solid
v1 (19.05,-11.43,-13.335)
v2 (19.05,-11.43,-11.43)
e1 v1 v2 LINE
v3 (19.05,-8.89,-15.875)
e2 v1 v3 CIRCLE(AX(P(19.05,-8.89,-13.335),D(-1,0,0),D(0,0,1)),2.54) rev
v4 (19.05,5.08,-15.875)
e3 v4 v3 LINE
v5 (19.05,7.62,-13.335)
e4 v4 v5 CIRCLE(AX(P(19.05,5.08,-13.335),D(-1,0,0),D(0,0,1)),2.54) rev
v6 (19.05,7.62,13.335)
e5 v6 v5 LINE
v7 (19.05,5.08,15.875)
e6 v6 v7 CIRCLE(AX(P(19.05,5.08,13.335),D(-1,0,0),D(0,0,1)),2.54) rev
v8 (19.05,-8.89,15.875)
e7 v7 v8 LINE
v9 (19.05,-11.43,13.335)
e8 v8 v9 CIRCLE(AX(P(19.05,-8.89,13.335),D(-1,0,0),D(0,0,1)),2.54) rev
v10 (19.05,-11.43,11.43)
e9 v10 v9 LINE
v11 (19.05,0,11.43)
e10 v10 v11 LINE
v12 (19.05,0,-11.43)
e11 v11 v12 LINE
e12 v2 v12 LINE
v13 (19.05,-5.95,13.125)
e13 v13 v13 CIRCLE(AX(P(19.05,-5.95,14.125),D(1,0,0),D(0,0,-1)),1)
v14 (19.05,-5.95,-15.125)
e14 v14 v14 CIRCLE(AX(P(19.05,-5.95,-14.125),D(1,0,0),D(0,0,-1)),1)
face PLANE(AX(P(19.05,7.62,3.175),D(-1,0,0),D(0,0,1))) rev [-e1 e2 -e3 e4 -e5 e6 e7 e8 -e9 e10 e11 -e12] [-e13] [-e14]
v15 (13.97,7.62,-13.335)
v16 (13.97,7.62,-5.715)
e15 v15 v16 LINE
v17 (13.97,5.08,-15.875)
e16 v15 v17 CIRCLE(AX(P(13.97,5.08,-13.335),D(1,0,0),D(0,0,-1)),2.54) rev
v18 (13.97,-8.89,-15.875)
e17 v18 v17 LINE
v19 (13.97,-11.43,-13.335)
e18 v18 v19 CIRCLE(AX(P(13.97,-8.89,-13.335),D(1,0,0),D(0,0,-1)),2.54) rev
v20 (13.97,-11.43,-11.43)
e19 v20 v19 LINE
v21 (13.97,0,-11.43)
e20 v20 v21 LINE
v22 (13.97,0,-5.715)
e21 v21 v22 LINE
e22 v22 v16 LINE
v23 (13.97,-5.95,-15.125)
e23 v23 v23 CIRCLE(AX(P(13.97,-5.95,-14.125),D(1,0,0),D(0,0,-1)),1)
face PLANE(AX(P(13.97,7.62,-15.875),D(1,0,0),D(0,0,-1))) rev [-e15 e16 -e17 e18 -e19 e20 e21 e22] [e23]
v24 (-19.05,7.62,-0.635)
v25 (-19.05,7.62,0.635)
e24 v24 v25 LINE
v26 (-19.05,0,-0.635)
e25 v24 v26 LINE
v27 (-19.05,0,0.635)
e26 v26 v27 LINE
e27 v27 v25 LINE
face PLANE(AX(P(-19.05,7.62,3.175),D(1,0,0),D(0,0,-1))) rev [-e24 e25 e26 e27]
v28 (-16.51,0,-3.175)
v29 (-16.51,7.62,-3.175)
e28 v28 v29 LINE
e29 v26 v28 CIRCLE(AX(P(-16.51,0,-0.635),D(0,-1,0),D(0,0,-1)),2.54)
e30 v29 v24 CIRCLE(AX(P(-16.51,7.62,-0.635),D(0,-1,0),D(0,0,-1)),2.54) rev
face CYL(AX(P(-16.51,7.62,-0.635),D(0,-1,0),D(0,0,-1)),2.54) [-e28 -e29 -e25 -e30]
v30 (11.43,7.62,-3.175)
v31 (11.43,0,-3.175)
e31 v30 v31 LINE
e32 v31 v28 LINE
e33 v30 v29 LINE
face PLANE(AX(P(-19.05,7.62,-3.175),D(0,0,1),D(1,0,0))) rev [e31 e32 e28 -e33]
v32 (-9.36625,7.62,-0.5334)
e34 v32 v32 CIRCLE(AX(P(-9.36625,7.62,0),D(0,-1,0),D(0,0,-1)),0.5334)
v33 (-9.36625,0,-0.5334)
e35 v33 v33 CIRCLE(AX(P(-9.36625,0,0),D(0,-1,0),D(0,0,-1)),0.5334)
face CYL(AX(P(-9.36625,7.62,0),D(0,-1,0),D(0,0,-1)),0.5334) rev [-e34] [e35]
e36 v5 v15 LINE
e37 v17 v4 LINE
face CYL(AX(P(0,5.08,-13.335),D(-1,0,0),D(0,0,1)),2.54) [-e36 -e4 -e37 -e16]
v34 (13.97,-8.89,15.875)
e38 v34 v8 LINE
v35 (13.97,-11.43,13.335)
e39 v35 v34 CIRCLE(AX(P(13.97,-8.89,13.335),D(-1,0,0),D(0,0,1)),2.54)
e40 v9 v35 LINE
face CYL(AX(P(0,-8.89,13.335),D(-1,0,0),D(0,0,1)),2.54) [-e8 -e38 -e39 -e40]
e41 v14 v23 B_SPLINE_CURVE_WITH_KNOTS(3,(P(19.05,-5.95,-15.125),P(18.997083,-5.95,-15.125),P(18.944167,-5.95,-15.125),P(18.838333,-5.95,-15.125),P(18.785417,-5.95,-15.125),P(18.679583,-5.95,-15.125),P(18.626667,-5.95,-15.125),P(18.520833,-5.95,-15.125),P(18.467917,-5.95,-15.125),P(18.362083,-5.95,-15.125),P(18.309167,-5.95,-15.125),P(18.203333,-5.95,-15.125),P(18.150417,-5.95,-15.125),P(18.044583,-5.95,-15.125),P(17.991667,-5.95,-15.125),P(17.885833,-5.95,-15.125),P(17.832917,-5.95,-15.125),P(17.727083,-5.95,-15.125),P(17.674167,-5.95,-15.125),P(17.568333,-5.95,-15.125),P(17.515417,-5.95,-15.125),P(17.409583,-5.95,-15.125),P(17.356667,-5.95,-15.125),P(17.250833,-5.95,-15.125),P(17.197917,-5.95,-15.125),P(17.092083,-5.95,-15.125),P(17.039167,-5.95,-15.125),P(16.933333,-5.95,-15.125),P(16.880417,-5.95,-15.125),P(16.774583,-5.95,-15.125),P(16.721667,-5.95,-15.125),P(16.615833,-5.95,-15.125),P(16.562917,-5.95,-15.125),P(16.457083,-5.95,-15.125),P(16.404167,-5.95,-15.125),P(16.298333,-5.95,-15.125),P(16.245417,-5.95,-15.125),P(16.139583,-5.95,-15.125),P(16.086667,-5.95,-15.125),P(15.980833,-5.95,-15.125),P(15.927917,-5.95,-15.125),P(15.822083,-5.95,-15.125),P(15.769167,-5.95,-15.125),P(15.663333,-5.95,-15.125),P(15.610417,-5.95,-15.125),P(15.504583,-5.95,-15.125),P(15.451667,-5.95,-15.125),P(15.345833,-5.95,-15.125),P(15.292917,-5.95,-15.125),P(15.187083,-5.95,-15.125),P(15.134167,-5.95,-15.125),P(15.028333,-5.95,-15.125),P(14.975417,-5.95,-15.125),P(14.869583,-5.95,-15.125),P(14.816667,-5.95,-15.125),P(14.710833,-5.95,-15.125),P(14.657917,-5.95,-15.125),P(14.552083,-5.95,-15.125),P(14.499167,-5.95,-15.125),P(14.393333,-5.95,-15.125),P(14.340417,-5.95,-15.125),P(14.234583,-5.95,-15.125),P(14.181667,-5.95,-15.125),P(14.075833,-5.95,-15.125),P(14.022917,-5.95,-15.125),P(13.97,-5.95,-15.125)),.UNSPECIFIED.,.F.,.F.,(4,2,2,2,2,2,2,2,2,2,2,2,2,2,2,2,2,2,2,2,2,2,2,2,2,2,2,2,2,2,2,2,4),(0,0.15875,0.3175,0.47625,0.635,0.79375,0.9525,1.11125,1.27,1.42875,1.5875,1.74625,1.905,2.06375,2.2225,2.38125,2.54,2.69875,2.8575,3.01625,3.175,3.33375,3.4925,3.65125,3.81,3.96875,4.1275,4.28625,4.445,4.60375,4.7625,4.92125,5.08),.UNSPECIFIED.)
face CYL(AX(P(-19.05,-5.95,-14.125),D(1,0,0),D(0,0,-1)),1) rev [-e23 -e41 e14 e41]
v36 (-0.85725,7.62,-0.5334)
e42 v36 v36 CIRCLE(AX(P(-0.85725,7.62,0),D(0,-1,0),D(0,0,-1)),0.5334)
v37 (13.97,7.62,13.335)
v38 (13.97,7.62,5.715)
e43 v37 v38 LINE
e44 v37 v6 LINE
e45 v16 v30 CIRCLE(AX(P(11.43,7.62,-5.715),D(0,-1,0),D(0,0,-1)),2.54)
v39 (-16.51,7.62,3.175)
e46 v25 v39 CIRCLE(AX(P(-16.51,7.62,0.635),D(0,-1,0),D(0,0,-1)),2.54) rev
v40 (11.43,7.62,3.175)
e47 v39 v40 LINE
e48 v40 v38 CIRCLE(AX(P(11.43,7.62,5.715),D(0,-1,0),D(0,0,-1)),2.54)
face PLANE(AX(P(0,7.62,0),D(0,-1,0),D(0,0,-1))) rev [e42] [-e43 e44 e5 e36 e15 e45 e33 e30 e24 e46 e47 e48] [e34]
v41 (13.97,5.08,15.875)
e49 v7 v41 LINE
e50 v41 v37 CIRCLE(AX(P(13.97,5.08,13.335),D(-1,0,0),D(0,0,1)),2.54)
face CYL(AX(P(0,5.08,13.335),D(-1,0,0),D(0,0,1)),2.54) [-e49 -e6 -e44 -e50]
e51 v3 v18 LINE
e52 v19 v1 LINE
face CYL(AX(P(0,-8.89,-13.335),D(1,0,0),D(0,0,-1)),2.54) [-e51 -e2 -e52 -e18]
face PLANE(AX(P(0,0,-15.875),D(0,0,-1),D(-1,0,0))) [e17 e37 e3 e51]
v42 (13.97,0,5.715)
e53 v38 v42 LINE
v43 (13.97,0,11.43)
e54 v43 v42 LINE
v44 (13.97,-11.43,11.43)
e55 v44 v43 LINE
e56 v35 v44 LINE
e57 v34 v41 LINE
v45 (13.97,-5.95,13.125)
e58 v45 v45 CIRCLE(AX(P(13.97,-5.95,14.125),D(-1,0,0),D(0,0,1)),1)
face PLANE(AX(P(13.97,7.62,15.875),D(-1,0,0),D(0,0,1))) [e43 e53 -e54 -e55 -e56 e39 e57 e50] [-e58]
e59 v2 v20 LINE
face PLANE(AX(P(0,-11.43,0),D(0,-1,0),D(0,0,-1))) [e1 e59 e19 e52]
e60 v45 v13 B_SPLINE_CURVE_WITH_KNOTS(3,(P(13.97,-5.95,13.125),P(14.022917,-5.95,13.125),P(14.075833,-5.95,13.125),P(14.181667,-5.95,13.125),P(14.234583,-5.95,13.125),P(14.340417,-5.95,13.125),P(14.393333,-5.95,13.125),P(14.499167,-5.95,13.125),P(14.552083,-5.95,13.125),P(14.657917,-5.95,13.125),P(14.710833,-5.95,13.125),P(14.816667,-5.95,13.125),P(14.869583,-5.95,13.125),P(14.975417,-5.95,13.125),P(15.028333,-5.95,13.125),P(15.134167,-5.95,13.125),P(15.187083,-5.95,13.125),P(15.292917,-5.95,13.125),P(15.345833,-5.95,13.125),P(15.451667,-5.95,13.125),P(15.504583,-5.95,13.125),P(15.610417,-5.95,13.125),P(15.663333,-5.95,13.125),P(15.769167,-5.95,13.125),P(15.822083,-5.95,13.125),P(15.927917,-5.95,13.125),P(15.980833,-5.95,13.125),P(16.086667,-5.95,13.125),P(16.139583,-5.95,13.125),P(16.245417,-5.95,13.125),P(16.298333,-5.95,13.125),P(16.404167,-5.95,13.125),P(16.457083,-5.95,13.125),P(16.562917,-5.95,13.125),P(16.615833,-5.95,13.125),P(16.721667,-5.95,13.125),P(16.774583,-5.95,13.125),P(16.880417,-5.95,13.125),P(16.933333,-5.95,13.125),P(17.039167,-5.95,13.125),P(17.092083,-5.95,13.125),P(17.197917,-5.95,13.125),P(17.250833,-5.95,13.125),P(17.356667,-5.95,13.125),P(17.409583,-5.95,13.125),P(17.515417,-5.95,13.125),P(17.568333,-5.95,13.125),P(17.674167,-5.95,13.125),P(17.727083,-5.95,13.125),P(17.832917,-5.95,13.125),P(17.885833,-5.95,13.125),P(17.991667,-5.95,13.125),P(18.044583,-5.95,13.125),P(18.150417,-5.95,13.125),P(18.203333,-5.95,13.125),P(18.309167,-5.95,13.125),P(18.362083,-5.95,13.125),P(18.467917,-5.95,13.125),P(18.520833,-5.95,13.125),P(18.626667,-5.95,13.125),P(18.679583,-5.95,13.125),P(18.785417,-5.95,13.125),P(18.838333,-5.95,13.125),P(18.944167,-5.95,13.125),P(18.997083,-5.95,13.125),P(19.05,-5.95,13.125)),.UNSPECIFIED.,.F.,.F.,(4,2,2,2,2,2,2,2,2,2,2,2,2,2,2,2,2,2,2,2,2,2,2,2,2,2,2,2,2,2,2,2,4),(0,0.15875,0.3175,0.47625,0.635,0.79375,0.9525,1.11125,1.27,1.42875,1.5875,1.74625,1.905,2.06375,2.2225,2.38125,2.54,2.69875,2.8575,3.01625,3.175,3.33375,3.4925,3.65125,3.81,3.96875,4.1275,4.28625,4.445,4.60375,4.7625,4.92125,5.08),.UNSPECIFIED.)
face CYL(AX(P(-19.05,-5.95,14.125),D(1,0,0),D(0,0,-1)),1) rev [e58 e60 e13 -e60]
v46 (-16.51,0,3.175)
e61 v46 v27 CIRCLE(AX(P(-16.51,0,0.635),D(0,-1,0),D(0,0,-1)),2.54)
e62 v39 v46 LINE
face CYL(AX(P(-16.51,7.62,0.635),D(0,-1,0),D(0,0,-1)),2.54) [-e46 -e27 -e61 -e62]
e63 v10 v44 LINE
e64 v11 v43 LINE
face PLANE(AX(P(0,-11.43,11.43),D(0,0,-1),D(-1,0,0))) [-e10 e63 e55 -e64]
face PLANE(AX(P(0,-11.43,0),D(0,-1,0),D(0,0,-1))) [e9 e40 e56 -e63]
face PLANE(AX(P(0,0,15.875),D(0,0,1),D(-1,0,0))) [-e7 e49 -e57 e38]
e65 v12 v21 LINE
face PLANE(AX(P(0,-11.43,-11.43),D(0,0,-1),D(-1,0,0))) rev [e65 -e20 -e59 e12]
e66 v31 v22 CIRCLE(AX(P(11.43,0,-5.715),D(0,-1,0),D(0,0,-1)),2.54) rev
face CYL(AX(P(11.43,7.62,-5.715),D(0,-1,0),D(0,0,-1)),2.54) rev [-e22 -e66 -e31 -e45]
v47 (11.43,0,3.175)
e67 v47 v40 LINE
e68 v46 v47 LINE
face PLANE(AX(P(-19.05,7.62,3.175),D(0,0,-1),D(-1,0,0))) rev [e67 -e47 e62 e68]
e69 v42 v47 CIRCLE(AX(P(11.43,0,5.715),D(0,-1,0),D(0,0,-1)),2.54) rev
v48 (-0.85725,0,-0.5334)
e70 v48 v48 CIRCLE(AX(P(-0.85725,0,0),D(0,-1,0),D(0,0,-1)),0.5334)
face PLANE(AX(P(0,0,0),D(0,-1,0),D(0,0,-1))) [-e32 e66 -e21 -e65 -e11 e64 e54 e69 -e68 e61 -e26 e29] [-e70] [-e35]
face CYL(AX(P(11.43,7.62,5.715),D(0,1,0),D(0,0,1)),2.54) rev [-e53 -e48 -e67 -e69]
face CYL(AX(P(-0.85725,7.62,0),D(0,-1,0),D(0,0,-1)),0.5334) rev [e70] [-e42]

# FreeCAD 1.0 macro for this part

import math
import FreeCAD as App
import Part
import Sketcher
Q = App.Units.Quantity


def edges_at(feature, points):
    """Names of the edges that pass closest to the given points."""
    edges = feature.Shape.Edges
    near = lambda p: min(range(len(edges)), key=lambda i: edges[i].distToShape(Part.Vertex(*p))[0])
    return sorted({f"Edge{near(p) + 1}" for p in points})


def add_polygon(sketch, points):
    """Adds a closed chain of lines whose ends are joined by coincident constraints."""
    first, n = sketch.GeometryCount, len(points)
    for a, b in zip(points, points[1:] + points[:1]):
        sketch.addGeometry(Part.LineSegment(App.Vector(*a, 0), App.Vector(*b, 0)), False)
    for i in range(n):
        sketch.addConstraint(Sketcher.Constraint("Coincident", first + i, 2, first + (i + 1) % n, 1))

doc = App.newDocument("Part")
body = doc.addObject("PartDesign::Body", "Body")

sketch1 = doc.addObject("Sketcher::SketchObject", "Sketch")
body.addObject(sketch1)
sketch1.AttachmentSupport = (doc.XZ_Plane, [""])
sketch1.MapMode = "FlatFace"
add_polygon(sketch1, [(-19, -3), (-19, 3), (19, 3), (19, -3)])
sketch1.addConstraint([
    Sketcher.Constraint("Vertical", 0),
    Sketcher.Constraint("Horizontal", 1),
    Sketcher.Constraint("Vertical", 2),
    Sketcher.Constraint("Horizontal", 3),
    Sketcher.Constraint("Symmetric", 0, 2, 2, 2, -1, 1),
    Sketcher.Constraint("DistanceX", 1, 1, 1, 2, Q("1.5 in")),
    Sketcher.Constraint("DistanceY", 0, 1, 0, 2, Q("0.25 in")),
])
pad1 = doc.addObject("PartDesign::Pad", "Pad")
body.addObject(pad1)
pad1.Profile = sketch1
pad1.Length = Q("0.3 in")
pad1.Reversed = True

sketch2 = doc.addObject("Sketcher::SketchObject", "Sketch001")
body.addObject(sketch2)
sketch2.AttachmentSupport = (doc.XY_Plane, [""])
sketch2.MapMode = "FlatFace"
sketch2.AttachmentOffset = App.Placement(App.Vector(0, 0, -0.125 * 25.4), App.Rotation())
add_polygon(sketch2, [(19, 8), (19, 0), (14, 0), (14, 8)])
sketch2.addConstraint([
    Sketcher.Constraint("Vertical", 0),
    Sketcher.Constraint("Horizontal", 1),
    Sketcher.Constraint("Vertical", 2),
    Sketcher.Constraint("Horizontal", 3),
    Sketcher.Constraint("PointOnObject", 0, 2, -1),
    Sketcher.Constraint("DistanceX", 1, 2, 1, 1, Q("0.2 in")),
    Sketcher.Constraint("DistanceY", 0, 2, 0, 1, Q("0.3 in")),
    Sketcher.Constraint("DistanceX", -1, 1, 0, 2, Q("0.75 in")),
])
pad2 = doc.addObject("PartDesign::Pad", "Pad001")
body.addObject(pad2)
pad2.Profile = sketch2
pad2.Length = Q("0.5 in")
pad2.Reversed = True
doc.recompute()

mirrored = doc.addObject("PartDesign::Mirrored", "Mirrored")
body.addObject(mirrored)
mirrored.Originals = [pad2]
mirrored.MirrorPlane = (doc.XY_Plane, [""])
body.Tip = mirrored

sketch3 = doc.addObject("Sketcher::SketchObject", "Sketch002")
body.addObject(sketch3)
sketch3.AttachmentSupport = (doc.XZ_Plane, [""])
sketch3.MapMode = "FlatFace"
add_polygon(sketch3, [(14, 15.9), (14, 11.4), (19.1, 11.4), (19.1, 15.9)])
add_polygon(sketch3, [(14, -11.4), (14, -15.9), (19.1, -15.9), (19.1, -11.4)])
sketch3.addConstraint([
    Sketcher.Constraint("Vertical", 0),
    Sketcher.Constraint("Horizontal", 1),
    Sketcher.Constraint("Vertical", 2),
    Sketcher.Constraint("Horizontal", 3),
    Sketcher.Constraint("Vertical", 4),
    Sketcher.Constraint("Horizontal", 5),
    Sketcher.Constraint("Vertical", 6),
    Sketcher.Constraint("Horizontal", 7),
    Sketcher.Constraint("Symmetric", 3, 2, 4, 2, -1),
    Sketcher.Constraint("Symmetric", 1, 2, 6, 2, -1),
    Sketcher.Constraint("DistanceX", 1, 1, 1, 2, Q("0.2 in")),
    Sketcher.Constraint("DistanceY", 6, 2, 1, 2, Q("0.9 in")),
    Sketcher.Constraint("DistanceY", 0, 2, 0, 1, Q("0.175 in")),
    Sketcher.Constraint("DistanceX", -1, 1, 0, 2, Q("0.55 in")),
])
pad3 = doc.addObject("PartDesign::Pad", "Pad002")
body.addObject(pad3)
pad3.Profile = sketch3
pad3.Length = Q("0.45 in")

sketch4 = doc.addObject("Sketcher::SketchObject", "Sketch003")
body.addObject(sketch4)
sketch4.AttachmentSupport = (doc.YZ_Plane, [""])
sketch4.MapMode = "FlatFace"
sketch4.AttachmentOffset = App.Placement(App.Vector(0, 0, 0.75 * 25.4), App.Rotation())
sketch4.addGeometry([
    Part.ArcOfCircle(Part.Circle(App.Vector(-6, 14.1, 0), App.Vector(0, 0, 1), 1), math.radians(60), math.radians(120)),
    Part.ArcOfCircle(Part.Circle(App.Vector(-6, 14.1, 0), App.Vector(0, 0, 1), 1), math.radians(120), math.radians(270)),
    Part.ArcOfCircle(Part.Circle(App.Vector(-6, 14.1, 0), App.Vector(0, 0, 1), 1), math.radians(-90), math.radians(60)),
    Part.ArcOfCircle(Part.Circle(App.Vector(-6, -14.1, 0), App.Vector(0, 0, 1), 1), math.radians(-90), math.radians(-60)),
    Part.ArcOfCircle(Part.Circle(App.Vector(-6, -14.1, 0), App.Vector(0, 0, 1), 1), math.radians(-60), math.radians(240)),
    Part.ArcOfCircle(Part.Circle(App.Vector(-5.9, -14.1, 0), App.Vector(0, 0, 1), 1), math.radians(-120), math.radians(-90)),
], False)
sketch4.addConstraint([
    Sketcher.Constraint("Tangent", 0, 2, 1, 1),
    Sketcher.Constraint("Tangent", 1, 2, 2, 1),
    Sketcher.Constraint("Tangent", 2, 2, 0, 1),
    Sketcher.Constraint("Tangent", 3, 2, 4, 1),
    Sketcher.Constraint("Tangent", 4, 2, 5, 1),
    Sketcher.Constraint("Tangent", 5, 2, 3, 1),
    Sketcher.Constraint("Equal", 2, 3),
    Sketcher.Constraint("Symmetric", 0, 3, 3, 3, -1),
    Sketcher.Constraint("Horizontal", 0, 2, 2, 2),
    Sketcher.Constraint("Horizontal", 3, 2, 4, 2),
    Sketcher.Constraint("Vertical", 5, 3, 1, 2),
    Sketcher.Constraint("Vertical", 2, 2, 3, 2),
    Sketcher.Constraint("Vertical", 1, 2, 5, 2),
    Sketcher.Constraint("Radius", 0, 1.0),
    Sketcher.Constraint("DistanceX", 0, 3, -1, 1, 5.95),
    Sketcher.Constraint("DistanceY", -1, 1, 0, 3, 14.125),
    Sketcher.Constraint("DistanceX", 0, 2, -1, 1, 6.45),
])
pocket1 = doc.addObject("PartDesign::Pocket", "Pocket")
body.addObject(pocket1)
pocket1.Profile = sketch4
pocket1.Type = "ThroughAll"
doc.recompute()

fillet = doc.addObject("PartDesign::Fillet", "Fillet")
body.addObject(fillet)
fillet.Base = (pocket1, edges_at(pocket1, [
    (13.97, 3.81, -3.175),
    (16.51, 7.62, -15.875),
    (16.51, 7.62, 15.875),
    (13.97, 3.81, 3.175),
    (16.51, -11.43, 15.875),
    (16.51, -11.43, -15.875),
    (-19.05, 3.81, 3.175),
    (-19.05, 3.81, -3.175),
]))
fillet.Radius = Q("0.1 in")

sketch5 = doc.addObject("Sketcher::SketchObject", "Sketch004")
body.addObject(sketch5)
sketch5.AttachmentSupport = (doc.XZ_Plane, [""])
sketch5.MapMode = "FlatFace"
sketch5.addGeometry([
    Part.Circle(App.Vector(-0.9, 0, 0), App.Vector(0, 0, 1), 0.5),
    Part.Circle(App.Vector(-9.4, 0, 0), App.Vector(0, 0, 1), 0.5),
], False)
sketch5.addConstraint([
    Sketcher.Constraint("Equal", 0, 1),
    Sketcher.Constraint("PointOnObject", 0, 3, -1),
    Sketcher.Constraint("PointOnObject", 1, 3, -1),
    Sketcher.Constraint("Diameter", 0, Q("0.042 in")),
    Sketcher.Constraint("DistanceX", 1, 3, 0, 3, Q("0.335 in")),
    Sketcher.Constraint("DistanceX", 0, 3, -1, 1, 0.85725),
])
pocket2 = doc.addObject("PartDesign::Pocket", "Pocket001")
body.addObject(pocket2)
pocket2.Profile = sketch5
pocket2.Type = "ThroughAll"

doc.recompute()
